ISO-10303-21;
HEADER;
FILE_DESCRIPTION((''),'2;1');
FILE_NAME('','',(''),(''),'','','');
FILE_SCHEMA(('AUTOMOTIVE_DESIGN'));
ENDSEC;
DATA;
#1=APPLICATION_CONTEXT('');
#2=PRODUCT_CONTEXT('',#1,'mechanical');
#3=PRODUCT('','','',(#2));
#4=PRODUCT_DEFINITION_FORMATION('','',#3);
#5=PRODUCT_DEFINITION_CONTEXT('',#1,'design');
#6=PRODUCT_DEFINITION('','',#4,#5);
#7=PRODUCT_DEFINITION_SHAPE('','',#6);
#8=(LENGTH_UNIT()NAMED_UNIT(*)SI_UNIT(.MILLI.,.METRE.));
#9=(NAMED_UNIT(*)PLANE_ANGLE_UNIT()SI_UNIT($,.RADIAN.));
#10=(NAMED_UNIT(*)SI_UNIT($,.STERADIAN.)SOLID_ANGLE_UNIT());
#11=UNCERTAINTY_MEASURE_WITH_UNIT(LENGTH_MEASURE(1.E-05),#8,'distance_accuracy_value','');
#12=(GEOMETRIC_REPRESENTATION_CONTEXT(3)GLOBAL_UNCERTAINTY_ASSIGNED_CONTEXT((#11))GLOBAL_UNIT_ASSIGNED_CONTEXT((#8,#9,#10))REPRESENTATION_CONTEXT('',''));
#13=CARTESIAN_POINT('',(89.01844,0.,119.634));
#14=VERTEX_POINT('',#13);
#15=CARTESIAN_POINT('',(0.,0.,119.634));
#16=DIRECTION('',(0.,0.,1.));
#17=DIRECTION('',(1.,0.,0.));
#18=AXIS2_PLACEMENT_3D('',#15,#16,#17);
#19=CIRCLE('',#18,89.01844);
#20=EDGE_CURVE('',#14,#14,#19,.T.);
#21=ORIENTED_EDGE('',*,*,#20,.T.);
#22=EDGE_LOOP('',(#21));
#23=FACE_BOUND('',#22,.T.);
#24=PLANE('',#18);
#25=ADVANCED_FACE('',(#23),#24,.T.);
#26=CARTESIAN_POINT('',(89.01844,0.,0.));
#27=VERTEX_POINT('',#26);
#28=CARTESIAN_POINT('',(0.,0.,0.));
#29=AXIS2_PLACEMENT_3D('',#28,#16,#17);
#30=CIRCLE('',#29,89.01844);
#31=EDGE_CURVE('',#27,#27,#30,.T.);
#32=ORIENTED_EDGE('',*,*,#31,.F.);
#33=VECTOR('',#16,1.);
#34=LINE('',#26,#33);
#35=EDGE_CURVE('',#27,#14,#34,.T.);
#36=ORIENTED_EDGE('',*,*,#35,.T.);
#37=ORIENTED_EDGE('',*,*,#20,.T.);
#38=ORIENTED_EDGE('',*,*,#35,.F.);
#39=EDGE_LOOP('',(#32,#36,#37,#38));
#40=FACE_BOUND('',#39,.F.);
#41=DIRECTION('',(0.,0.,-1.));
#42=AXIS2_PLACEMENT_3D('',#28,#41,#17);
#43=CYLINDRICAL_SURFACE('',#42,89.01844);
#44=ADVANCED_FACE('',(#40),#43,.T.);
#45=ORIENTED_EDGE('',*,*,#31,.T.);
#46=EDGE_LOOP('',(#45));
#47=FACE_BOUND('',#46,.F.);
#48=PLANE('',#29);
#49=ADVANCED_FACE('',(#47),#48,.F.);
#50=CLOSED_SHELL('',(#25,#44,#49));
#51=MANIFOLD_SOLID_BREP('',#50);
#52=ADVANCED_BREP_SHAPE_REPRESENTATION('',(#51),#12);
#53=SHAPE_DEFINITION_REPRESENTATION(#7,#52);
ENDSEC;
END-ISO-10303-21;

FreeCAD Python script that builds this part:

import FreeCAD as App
import Part
import Sketcher

doc = App.newDocument("Part")
params = doc.addObject("Spreadsheet::Sheet", "Params")
for row, (alias, value) in enumerate([
    ("pad1_length", "4.71 in"),
], start=1):
    params.set(f"A{row}", alias)
    params.set(f"B{row}", "=" + value)
    params.setAlias(f"B{row}", alias)

body = doc.addObject("PartDesign::Body", "Body")

sketch1 = body.newObject("Sketcher::SketchObject", "Sketch")
sketch1.AttachmentSupport = (doc.getObject("XY_Plane"), [""])
sketch1.MapMode = "FlatFace"
sketch1.addGeometry(Part.Circle(App.Vector(0, 0, 0), App.Vector(0, 0, 1), 89), False)
sketch1.addConstraint([
    Sketcher.Constraint("Coincident", 0, 3, -1, 1),
    Sketcher.Constraint("Diameter", 0, 178.03688),
])
pad1 = body.newObject("PartDesign::Pad", "Pad")
pad1.Profile = sketch1
pad1.setExpression("Length", "Params.pad1_length")

doc.recompute()
